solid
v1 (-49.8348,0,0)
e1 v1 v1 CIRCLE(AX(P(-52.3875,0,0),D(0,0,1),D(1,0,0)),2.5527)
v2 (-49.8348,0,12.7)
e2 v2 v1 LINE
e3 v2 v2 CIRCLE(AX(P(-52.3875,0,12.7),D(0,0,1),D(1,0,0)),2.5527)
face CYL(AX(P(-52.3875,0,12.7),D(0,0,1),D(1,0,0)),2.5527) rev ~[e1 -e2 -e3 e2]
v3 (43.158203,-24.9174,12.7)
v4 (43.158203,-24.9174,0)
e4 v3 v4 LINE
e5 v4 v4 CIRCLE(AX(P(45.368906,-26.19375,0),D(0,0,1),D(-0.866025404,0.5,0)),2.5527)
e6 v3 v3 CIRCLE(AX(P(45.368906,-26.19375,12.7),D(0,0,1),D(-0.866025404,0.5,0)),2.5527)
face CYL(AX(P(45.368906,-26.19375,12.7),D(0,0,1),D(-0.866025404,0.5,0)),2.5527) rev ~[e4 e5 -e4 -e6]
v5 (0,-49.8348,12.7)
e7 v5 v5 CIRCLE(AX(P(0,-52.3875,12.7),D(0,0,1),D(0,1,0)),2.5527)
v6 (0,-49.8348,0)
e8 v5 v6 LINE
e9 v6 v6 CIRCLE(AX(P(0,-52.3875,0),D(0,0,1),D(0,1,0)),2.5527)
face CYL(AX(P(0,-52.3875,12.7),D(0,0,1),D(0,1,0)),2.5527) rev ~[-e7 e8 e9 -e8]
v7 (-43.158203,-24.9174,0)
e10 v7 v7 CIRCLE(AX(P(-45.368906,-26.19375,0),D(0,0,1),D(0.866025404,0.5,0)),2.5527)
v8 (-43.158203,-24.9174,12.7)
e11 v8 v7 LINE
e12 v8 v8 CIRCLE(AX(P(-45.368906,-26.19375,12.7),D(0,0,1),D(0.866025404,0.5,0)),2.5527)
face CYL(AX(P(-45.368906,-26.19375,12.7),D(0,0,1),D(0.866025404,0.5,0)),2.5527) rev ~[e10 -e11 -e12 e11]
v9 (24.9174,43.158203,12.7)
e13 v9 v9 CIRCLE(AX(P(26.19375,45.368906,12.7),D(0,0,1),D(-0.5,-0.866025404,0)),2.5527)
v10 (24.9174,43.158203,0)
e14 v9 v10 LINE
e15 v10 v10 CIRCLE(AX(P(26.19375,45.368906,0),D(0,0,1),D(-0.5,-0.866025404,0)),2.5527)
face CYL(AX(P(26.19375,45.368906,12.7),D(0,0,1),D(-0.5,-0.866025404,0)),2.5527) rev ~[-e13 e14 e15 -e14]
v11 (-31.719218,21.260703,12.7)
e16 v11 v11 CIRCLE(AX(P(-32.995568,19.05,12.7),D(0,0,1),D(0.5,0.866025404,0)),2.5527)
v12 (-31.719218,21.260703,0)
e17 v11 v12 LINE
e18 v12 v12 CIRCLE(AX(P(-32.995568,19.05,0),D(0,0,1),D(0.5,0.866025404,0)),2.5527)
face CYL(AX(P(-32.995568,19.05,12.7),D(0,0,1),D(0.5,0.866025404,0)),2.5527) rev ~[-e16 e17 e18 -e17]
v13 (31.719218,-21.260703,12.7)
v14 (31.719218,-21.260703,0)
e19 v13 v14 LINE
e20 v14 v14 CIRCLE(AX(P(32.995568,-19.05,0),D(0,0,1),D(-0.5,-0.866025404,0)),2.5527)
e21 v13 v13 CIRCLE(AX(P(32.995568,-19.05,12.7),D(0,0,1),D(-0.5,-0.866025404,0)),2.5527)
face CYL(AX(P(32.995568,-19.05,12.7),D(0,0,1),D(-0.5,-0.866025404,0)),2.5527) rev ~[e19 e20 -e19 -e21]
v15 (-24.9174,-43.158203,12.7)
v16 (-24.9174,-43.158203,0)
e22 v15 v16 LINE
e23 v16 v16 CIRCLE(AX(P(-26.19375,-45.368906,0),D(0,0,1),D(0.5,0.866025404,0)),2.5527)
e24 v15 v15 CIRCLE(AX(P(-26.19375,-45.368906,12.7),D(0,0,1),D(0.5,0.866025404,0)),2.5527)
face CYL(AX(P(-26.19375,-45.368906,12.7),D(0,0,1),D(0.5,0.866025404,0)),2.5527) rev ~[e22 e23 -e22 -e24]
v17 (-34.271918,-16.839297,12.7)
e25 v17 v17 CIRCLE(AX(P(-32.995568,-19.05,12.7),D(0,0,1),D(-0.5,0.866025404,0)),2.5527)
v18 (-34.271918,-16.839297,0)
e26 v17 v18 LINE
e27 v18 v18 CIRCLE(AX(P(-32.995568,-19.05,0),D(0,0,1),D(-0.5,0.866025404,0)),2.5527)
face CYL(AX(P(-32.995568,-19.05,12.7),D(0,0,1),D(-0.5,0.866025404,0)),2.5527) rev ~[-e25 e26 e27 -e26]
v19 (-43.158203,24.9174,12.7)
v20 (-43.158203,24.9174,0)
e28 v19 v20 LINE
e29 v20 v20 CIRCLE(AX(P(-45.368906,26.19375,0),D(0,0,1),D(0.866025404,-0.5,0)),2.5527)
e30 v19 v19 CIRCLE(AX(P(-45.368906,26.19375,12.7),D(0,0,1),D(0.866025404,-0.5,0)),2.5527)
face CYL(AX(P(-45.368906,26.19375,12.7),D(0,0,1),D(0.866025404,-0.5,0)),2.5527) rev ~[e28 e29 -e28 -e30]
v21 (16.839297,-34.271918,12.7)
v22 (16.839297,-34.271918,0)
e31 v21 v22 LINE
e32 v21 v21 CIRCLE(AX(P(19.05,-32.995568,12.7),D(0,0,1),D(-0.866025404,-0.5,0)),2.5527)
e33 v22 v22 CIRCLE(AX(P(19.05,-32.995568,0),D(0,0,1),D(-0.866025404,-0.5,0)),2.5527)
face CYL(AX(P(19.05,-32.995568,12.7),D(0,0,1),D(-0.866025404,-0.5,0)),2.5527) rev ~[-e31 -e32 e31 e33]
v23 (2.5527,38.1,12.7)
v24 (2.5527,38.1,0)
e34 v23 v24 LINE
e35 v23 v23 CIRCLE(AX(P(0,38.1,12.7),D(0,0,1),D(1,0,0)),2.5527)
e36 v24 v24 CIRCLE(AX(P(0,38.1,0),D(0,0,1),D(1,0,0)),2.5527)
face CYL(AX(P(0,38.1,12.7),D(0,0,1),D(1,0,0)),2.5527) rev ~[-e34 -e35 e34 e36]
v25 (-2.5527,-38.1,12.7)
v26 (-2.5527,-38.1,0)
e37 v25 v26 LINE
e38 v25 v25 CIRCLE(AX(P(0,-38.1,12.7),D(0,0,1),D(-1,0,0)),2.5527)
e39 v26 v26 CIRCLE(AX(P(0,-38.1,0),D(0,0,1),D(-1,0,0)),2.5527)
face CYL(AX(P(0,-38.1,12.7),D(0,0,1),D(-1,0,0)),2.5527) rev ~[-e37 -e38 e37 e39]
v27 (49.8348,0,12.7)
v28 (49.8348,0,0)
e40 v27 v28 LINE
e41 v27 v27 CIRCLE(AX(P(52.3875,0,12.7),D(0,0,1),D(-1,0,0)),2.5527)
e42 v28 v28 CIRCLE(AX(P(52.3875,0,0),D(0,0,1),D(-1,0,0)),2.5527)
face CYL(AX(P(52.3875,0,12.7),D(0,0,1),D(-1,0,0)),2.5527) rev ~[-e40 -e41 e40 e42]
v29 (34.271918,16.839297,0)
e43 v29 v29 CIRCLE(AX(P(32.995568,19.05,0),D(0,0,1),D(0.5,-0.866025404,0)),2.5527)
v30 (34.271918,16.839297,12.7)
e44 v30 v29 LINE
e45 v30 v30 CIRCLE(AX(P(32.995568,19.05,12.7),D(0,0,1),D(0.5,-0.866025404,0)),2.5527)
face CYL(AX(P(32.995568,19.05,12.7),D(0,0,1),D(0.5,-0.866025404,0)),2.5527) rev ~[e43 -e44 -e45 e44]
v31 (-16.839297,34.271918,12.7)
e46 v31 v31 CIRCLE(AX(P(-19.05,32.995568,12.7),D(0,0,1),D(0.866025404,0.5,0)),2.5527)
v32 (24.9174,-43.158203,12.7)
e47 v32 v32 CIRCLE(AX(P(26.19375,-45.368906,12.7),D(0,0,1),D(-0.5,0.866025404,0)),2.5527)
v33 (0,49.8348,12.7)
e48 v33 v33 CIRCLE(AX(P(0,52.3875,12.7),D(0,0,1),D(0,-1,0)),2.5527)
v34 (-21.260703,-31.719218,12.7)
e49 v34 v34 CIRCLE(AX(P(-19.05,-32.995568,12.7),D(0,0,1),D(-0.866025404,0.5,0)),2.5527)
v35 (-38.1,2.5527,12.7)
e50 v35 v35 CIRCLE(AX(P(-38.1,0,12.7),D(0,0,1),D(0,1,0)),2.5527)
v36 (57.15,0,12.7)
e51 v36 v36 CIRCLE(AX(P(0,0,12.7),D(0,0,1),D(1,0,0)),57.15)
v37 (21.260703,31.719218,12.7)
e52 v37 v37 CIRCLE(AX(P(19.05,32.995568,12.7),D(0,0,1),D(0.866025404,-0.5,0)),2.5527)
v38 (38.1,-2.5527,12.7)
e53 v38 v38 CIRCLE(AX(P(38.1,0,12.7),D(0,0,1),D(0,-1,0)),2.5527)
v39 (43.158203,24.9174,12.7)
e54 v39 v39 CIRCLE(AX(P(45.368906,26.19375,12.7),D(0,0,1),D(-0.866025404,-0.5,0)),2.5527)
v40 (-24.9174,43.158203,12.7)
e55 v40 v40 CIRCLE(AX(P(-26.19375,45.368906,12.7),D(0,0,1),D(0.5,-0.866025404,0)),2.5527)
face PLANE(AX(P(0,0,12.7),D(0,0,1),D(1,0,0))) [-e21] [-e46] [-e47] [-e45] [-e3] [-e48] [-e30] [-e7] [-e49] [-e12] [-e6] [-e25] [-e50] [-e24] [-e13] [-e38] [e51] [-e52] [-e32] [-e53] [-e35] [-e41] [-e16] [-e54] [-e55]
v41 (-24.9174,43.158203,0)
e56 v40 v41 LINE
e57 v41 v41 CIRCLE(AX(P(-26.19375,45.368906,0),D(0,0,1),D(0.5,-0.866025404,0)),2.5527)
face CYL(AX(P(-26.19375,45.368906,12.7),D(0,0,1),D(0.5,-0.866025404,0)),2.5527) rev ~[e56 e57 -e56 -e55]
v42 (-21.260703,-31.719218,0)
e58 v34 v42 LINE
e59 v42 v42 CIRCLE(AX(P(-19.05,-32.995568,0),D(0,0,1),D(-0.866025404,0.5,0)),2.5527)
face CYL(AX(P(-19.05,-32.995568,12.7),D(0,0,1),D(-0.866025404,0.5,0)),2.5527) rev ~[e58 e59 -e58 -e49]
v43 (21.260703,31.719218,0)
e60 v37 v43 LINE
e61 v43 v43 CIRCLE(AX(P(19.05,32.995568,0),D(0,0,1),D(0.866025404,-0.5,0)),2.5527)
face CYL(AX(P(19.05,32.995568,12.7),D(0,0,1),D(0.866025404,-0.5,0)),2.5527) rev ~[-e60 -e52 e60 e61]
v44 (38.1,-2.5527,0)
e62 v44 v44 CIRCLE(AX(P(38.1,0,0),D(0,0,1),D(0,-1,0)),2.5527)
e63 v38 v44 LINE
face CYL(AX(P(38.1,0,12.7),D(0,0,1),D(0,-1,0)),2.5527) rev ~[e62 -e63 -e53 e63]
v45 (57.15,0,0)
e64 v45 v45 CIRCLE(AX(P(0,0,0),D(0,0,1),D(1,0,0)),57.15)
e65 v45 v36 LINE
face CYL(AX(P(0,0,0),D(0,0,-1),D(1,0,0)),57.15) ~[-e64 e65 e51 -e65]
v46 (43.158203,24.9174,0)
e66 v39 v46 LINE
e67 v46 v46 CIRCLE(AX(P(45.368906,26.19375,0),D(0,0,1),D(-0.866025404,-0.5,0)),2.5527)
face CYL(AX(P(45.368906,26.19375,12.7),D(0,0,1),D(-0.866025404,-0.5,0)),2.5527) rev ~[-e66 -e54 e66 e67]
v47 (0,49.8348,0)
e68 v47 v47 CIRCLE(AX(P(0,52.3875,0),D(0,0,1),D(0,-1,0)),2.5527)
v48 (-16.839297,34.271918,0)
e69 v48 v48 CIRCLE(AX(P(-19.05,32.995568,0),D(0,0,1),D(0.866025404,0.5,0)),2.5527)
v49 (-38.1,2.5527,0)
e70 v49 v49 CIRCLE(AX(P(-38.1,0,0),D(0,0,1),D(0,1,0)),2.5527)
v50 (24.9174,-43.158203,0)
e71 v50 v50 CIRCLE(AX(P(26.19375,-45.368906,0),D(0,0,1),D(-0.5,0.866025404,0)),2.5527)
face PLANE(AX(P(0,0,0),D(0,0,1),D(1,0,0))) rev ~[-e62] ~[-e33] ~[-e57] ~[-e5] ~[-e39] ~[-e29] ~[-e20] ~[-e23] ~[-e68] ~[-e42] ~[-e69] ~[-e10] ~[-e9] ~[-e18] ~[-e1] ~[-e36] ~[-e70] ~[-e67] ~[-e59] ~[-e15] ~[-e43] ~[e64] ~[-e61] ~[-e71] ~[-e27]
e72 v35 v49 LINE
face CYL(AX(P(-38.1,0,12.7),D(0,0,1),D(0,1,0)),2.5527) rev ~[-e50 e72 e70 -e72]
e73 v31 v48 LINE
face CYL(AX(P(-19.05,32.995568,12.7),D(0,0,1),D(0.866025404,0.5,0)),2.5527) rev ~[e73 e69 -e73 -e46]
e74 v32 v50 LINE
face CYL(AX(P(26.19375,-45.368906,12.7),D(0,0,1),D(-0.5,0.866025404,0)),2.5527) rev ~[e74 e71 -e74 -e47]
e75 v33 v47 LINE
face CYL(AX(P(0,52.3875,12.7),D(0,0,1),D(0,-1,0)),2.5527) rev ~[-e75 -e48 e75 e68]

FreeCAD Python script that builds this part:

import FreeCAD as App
import Part
import Sketcher

V = App.Vector
Q = App.Units.Quantity

doc = App.newDocument("Part")
body = doc.addObject("PartDesign::Body", "Body")

# Sketch on XY plane
sketch1 = body.newObject("Sketcher::SketchObject", "Sketch")
sketch1.AttachmentSupport = (doc.getObject("XY_Plane"), [""])
sketch1.MapMode = "FlatFace"
sketch1.addGeometry(Part.Circle(V(0, 0, 0), V(0, 0, 1), 57), False)
sketch1.addConstraint([
    Sketcher.Constraint("Coincident", 0, 3, -1, 1),
    Sketcher.Constraint("Diameter", 0, Q("4.5 in")),
])
pad1 = body.newObject("PartDesign::Pad", "Pad")
pad1.Profile = sketch1
pad1.Length = Q("0.5 in")

# Sketch on XY plane
sketch2 = body.newObject("Sketcher::SketchObject", "Sketch001")
sketch2.AttachmentSupport = (doc.getObject("XY_Plane"), [""])
sketch2.MapMode = "FlatFace"
sketch2.AttachmentOffset = App.Placement(V(0, 0, 0.5 * 25.4), App.Rotation())
sketch2.addGeometry(Part.Circle(V(-52.4, 0, 0), V(0, 0, 1), 2.6), False)
sketch2.addConstraint([
    Sketcher.Constraint("PointOnObject", 0, 3, -1),
    Sketcher.Constraint("Diameter", 0, Q("0.201 in")),
    Sketcher.Constraint("DistanceX", 0, 3, -1, 1, Q("2.0625 in")),
])
pocket1 = body.newObject("PartDesign::Pocket", "Pocket")
pocket1.Profile = sketch2
pocket1.Type = "ThroughAll"
doc.recompute()

polarpattern = body.newObject("PartDesign::PolarPattern", "PolarPattern")
polarpattern.Originals = [pocket1]
polarpattern.Axis = (doc.getObject("Z_Axis"), [""])
polarpattern.Angle = 360
polarpattern.Occurrences = 12
body.Tip = polarpattern

# Sketch on XY plane
sketch3 = body.newObject("Sketcher::SketchObject", "Sketch002")
sketch3.AttachmentSupport = (doc.getObject("XY_Plane"), [""])
sketch3.MapMode = "FlatFace"
sketch3.AttachmentOffset = App.Placement(V(0, 0, 0.5 * 25.4), App.Rotation())
sketch3.addGeometry(Part.Circle(V(0, 38.1, 0), V(0, 0, 1), 2.6), False)
sketch3.addConstraint([
    Sketcher.Constraint("PointOnObject", 0, 3, -2),
    Sketcher.Constraint("Diameter", 0, Q("0.201 in")),
    Sketcher.Constraint("DistanceY", -1, 1, 0, 3, Q("1.5 in")),
])
pocket2 = body.newObject("PartDesign::Pocket", "Pocket001")
pocket2.Profile = sketch3
pocket2.Type = "ThroughAll"
doc.recompute()

polarpattern2 = body.newObject("PartDesign::PolarPattern", "PolarPattern001")
polarpattern2.Originals = [pocket2]
polarpattern2.Axis = (doc.getObject("Z_Axis"), [""])
polarpattern2.Angle = 360
polarpattern2.Occurrences = 12
body.Tip = polarpattern2

doc.recompute()
